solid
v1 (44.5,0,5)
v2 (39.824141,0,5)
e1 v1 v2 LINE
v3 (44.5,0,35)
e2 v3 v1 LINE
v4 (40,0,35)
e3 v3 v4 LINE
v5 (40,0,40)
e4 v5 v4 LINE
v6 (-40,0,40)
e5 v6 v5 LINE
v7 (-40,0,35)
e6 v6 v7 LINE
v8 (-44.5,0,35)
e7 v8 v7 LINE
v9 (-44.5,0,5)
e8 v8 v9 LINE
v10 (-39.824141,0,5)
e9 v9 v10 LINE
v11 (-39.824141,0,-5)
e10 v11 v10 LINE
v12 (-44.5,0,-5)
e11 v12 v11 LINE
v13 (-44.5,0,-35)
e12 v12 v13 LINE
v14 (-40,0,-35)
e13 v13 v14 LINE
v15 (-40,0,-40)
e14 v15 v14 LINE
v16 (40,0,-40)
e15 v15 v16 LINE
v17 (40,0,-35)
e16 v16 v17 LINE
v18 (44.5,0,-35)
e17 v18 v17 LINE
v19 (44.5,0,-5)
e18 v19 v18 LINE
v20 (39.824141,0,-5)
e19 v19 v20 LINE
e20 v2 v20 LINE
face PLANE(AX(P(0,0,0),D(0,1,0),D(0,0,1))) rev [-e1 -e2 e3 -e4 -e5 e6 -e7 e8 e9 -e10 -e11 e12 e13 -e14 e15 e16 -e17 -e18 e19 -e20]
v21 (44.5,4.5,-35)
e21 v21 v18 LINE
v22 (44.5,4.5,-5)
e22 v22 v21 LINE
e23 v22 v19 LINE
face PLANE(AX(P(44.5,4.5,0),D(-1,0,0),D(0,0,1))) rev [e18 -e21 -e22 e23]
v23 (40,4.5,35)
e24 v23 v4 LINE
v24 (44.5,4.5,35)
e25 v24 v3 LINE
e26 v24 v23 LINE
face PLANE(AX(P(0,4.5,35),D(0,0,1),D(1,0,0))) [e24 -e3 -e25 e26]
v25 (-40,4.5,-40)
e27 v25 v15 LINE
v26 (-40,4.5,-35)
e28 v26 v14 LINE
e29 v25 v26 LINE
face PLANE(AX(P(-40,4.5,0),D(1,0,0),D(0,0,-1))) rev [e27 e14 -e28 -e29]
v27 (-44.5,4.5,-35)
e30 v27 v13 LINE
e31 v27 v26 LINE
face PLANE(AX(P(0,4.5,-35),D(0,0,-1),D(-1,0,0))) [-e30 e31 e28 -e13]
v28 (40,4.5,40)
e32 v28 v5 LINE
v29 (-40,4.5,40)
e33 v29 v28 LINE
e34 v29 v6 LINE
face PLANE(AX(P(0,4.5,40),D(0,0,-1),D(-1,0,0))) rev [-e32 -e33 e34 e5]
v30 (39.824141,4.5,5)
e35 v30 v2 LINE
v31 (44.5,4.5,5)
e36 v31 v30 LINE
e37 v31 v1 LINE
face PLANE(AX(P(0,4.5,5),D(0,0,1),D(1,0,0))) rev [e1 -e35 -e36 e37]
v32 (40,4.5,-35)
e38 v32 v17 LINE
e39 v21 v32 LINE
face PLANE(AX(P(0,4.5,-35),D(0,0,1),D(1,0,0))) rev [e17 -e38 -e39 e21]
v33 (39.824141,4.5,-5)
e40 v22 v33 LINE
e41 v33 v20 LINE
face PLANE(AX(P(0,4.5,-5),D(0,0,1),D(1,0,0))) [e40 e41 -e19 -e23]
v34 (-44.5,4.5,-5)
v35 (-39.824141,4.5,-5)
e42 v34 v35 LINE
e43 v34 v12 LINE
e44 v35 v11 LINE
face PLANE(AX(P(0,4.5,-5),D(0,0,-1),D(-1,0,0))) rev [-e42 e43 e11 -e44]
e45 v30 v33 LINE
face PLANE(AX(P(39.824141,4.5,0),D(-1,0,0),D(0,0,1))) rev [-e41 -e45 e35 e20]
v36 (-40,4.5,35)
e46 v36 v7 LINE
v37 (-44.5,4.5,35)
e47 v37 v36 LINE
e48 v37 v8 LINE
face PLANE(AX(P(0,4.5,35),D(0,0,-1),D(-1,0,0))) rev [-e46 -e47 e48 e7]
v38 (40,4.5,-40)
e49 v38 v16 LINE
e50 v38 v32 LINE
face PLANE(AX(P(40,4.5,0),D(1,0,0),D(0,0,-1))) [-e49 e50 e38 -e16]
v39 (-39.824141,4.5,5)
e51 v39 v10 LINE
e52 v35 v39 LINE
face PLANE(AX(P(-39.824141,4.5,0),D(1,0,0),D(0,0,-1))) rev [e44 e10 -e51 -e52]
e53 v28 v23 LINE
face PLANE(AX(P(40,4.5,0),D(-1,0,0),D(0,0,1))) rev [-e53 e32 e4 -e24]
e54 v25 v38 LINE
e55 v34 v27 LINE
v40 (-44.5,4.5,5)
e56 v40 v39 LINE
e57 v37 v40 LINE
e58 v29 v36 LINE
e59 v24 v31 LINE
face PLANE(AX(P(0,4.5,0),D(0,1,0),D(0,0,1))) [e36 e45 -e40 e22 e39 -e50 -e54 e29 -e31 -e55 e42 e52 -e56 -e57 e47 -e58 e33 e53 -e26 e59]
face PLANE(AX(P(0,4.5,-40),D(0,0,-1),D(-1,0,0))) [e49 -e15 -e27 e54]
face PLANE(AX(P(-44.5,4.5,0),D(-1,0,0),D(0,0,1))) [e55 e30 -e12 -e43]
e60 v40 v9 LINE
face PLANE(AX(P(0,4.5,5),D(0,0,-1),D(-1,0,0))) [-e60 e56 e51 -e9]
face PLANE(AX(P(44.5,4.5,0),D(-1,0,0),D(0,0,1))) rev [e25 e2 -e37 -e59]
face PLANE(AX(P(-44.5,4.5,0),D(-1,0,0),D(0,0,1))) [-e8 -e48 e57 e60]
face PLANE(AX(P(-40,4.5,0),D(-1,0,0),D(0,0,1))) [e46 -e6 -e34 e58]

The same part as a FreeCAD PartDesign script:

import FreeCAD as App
import Part
import Sketcher

doc = App.newDocument("Part")
body = doc.addObject("PartDesign::Body", "Body")

sketch1 = body.newObject("Sketcher::SketchObject", "Sketch")
sketch1.AttachmentSupport = (doc.getObject("XZ_Plane"), [""])
sketch1.MapMode = "FlatFace"
sketch1.addGeometry(Part.LineSegment(App.Vector(-40, 35, 0), App.Vector(-40, 40, 0)), False)
sketch1.addGeometry(Part.LineSegment(App.Vector(-40, 40, 0), App.Vector(40, 40, 0)), False)
sketch1.addGeometry(Part.LineSegment(App.Vector(40, 40, 0), App.Vector(40, 35, 0)), False)
sketch1.addGeometry(Part.LineSegment(App.Vector(40, 35, 0), App.Vector(44.5, 35, 0)), False)
sketch1.addGeometry(Part.LineSegment(App.Vector(44.5, 35, 0), App.Vector(44.5, 5, 0)), False)
sketch1.addGeometry(Part.LineSegment(App.Vector(44.5, 5, 0), App.Vector(39.824141, 5, 0)), False)
sketch1.addGeometry(Part.LineSegment(App.Vector(39.824141, 5, 0), App.Vector(39.824141, -5, 0)), False)
sketch1.addGeometry(Part.LineSegment(App.Vector(39.824141, -5, 0), App.Vector(44.5, -5, 0)), False)
sketch1.addGeometry(Part.LineSegment(App.Vector(44.5, -5, 0), App.Vector(44.5, -35, 0)), False)
sketch1.addGeometry(Part.LineSegment(App.Vector(44.5, -35, 0), App.Vector(40, -35, 0)), False)
sketch1.addGeometry(Part.LineSegment(App.Vector(40, -35, 0), App.Vector(40, -40, 0)), False)
sketch1.addGeometry(Part.LineSegment(App.Vector(40, -40, 0), App.Vector(-40, -40, 0)), False)
sketch1.addGeometry(Part.LineSegment(App.Vector(-40, -40, 0), App.Vector(-40, -35, 0)), False)
sketch1.addGeometry(Part.LineSegment(App.Vector(-40, -35, 0), App.Vector(-44.5, -35, 0)), False)
sketch1.addGeometry(Part.LineSegment(App.Vector(-44.5, -35, 0), App.Vector(-44.5, -5, 0)), False)
sketch1.addGeometry(Part.LineSegment(App.Vector(-44.5, -5, 0), App.Vector(-39.824141, -5, 0)), False)
sketch1.addGeometry(Part.LineSegment(App.Vector(-39.824141, -5, 0), App.Vector(-39.824141, 5, 0)), False)
sketch1.addGeometry(Part.LineSegment(App.Vector(-39.824141, 5, 0), App.Vector(-44.5, 5, 0)), False)
sketch1.addGeometry(Part.LineSegment(App.Vector(-44.5, 5, 0), App.Vector(-44.5, 35, 0)), False)
sketch1.addGeometry(Part.LineSegment(App.Vector(-44.5, 35, 0), App.Vector(-40, 35, 0)), False)
sketch1.addConstraint(Sketcher.Constraint("Coincident", 0, 2, 1, 1))
sketch1.addConstraint(Sketcher.Constraint("Coincident", 1, 2, 2, 1))
sketch1.addConstraint(Sketcher.Constraint("Coincident", 2, 2, 3, 1))
sketch1.addConstraint(Sketcher.Constraint("Coincident", 3, 2, 4, 1))
sketch1.addConstraint(Sketcher.Constraint("Coincident", 4, 2, 5, 1))
sketch1.addConstraint(Sketcher.Constraint("Coincident", 5, 2, 6, 1))
sketch1.addConstraint(Sketcher.Constraint("Coincident", 6, 2, 7, 1))
sketch1.addConstraint(Sketcher.Constraint("Coincident", 7, 2, 8, 1))
sketch1.addConstraint(Sketcher.Constraint("Coincident", 8, 2, 9, 1))
sketch1.addConstraint(Sketcher.Constraint("Coincident", 9, 2, 10, 1))
sketch1.addConstraint(Sketcher.Constraint("Coincident", 10, 2, 11, 1))
sketch1.addConstraint(Sketcher.Constraint("Coincident", 11, 2, 12, 1))
sketch1.addConstraint(Sketcher.Constraint("Coincident", 12, 2, 13, 1))
sketch1.addConstraint(Sketcher.Constraint("Coincident", 13, 2, 14, 1))
sketch1.addConstraint(Sketcher.Constraint("Coincident", 14, 2, 15, 1))
sketch1.addConstraint(Sketcher.Constraint("Coincident", 15, 2, 16, 1))
sketch1.addConstraint(Sketcher.Constraint("Coincident", 16, 2, 17, 1))
sketch1.addConstraint(Sketcher.Constraint("Coincident", 17, 2, 18, 1))
sketch1.addConstraint(Sketcher.Constraint("Coincident", 18, 2, 19, 1))
sketch1.addConstraint(Sketcher.Constraint("Coincident", 19, 2, 0, 1))
sketch1.addConstraint(Sketcher.Constraint("Vertical", 0))
sketch1.addConstraint(Sketcher.Constraint("Horizontal", 1))
sketch1.addConstraint(Sketcher.Constraint("Vertical", 2))
sketch1.addConstraint(Sketcher.Constraint("Horizontal", 3))
sketch1.addConstraint(Sketcher.Constraint("Vertical", 4))
sketch1.addConstraint(Sketcher.Constraint("Horizontal", 5))
sketch1.addConstraint(Sketcher.Constraint("Vertical", 6))
sketch1.addConstraint(Sketcher.Constraint("Horizontal", 7))
sketch1.addConstraint(Sketcher.Constraint("Vertical", 8))
sketch1.addConstraint(Sketcher.Constraint("Horizontal", 9))
sketch1.addConstraint(Sketcher.Constraint("Vertical", 10))
sketch1.addConstraint(Sketcher.Constraint("Horizontal", 11))
sketch1.addConstraint(Sketcher.Constraint("Vertical", 12))
sketch1.addConstraint(Sketcher.Constraint("Horizontal", 13))
sketch1.addConstraint(Sketcher.Constraint("Vertical", 14))
sketch1.addConstraint(Sketcher.Constraint("Horizontal", 15))
sketch1.addConstraint(Sketcher.Constraint("Vertical", 16))
sketch1.addConstraint(Sketcher.Constraint("Horizontal", 17))
sketch1.addConstraint(Sketcher.Constraint("Vertical", 18))
sketch1.addConstraint(Sketcher.Constraint("Horizontal", 19))
sketch1.addConstraint(Sketcher.Constraint("Symmetric", 0, 2, 10, 2, -1, 1))
sketch1.addConstraint(Sketcher.Constraint("Symmetric", 2, 2, 12, 2, -1, 1))
sketch1.addConstraint(Sketcher.Constraint("Symmetric", 4, 2, 14, 2, -1, 1))
sketch1.addConstraint(Sketcher.Constraint("Symmetric", 6, 2, 16, 2, -1, 1))
sketch1.addConstraint(Sketcher.Constraint("Symmetric", 8, 2, 18, 2, -1, 1))
sketch1.addConstraint(Sketcher.Constraint("Symmetric", 9, 2, 12, 2, -2))
sketch1.addConstraint(Sketcher.Constraint("Symmetric", 7, 2, 14, 2, -2))
sketch1.addConstraint(Sketcher.Constraint("DistanceX", 1, 1, 1, 2, 80.0))
sketch1.addConstraint(Sketcher.Constraint("DistanceY", 0, 1, 0, 2, 5.0))
sketch1.addConstraint(Sketcher.Constraint("DistanceY", 4, 2, 4, 1, 30.0))
sketch1.addConstraint(Sketcher.Constraint("DistanceY", 6, 2, 6, 1, 10.0))
sketch1.addConstraint(Sketcher.Constraint("DistanceX", 3, 1, 3, 2, 4.5))
sketch1.addConstraint(Sketcher.Constraint("DistanceX", 5, 2, 5, 1, 4.675859))
pad1 = body.newObject("PartDesign::Pad", "Pad")
pad1.Profile = sketch1
pad1.Length = 4.5
pad1.Reversed = True

doc.recompute()
